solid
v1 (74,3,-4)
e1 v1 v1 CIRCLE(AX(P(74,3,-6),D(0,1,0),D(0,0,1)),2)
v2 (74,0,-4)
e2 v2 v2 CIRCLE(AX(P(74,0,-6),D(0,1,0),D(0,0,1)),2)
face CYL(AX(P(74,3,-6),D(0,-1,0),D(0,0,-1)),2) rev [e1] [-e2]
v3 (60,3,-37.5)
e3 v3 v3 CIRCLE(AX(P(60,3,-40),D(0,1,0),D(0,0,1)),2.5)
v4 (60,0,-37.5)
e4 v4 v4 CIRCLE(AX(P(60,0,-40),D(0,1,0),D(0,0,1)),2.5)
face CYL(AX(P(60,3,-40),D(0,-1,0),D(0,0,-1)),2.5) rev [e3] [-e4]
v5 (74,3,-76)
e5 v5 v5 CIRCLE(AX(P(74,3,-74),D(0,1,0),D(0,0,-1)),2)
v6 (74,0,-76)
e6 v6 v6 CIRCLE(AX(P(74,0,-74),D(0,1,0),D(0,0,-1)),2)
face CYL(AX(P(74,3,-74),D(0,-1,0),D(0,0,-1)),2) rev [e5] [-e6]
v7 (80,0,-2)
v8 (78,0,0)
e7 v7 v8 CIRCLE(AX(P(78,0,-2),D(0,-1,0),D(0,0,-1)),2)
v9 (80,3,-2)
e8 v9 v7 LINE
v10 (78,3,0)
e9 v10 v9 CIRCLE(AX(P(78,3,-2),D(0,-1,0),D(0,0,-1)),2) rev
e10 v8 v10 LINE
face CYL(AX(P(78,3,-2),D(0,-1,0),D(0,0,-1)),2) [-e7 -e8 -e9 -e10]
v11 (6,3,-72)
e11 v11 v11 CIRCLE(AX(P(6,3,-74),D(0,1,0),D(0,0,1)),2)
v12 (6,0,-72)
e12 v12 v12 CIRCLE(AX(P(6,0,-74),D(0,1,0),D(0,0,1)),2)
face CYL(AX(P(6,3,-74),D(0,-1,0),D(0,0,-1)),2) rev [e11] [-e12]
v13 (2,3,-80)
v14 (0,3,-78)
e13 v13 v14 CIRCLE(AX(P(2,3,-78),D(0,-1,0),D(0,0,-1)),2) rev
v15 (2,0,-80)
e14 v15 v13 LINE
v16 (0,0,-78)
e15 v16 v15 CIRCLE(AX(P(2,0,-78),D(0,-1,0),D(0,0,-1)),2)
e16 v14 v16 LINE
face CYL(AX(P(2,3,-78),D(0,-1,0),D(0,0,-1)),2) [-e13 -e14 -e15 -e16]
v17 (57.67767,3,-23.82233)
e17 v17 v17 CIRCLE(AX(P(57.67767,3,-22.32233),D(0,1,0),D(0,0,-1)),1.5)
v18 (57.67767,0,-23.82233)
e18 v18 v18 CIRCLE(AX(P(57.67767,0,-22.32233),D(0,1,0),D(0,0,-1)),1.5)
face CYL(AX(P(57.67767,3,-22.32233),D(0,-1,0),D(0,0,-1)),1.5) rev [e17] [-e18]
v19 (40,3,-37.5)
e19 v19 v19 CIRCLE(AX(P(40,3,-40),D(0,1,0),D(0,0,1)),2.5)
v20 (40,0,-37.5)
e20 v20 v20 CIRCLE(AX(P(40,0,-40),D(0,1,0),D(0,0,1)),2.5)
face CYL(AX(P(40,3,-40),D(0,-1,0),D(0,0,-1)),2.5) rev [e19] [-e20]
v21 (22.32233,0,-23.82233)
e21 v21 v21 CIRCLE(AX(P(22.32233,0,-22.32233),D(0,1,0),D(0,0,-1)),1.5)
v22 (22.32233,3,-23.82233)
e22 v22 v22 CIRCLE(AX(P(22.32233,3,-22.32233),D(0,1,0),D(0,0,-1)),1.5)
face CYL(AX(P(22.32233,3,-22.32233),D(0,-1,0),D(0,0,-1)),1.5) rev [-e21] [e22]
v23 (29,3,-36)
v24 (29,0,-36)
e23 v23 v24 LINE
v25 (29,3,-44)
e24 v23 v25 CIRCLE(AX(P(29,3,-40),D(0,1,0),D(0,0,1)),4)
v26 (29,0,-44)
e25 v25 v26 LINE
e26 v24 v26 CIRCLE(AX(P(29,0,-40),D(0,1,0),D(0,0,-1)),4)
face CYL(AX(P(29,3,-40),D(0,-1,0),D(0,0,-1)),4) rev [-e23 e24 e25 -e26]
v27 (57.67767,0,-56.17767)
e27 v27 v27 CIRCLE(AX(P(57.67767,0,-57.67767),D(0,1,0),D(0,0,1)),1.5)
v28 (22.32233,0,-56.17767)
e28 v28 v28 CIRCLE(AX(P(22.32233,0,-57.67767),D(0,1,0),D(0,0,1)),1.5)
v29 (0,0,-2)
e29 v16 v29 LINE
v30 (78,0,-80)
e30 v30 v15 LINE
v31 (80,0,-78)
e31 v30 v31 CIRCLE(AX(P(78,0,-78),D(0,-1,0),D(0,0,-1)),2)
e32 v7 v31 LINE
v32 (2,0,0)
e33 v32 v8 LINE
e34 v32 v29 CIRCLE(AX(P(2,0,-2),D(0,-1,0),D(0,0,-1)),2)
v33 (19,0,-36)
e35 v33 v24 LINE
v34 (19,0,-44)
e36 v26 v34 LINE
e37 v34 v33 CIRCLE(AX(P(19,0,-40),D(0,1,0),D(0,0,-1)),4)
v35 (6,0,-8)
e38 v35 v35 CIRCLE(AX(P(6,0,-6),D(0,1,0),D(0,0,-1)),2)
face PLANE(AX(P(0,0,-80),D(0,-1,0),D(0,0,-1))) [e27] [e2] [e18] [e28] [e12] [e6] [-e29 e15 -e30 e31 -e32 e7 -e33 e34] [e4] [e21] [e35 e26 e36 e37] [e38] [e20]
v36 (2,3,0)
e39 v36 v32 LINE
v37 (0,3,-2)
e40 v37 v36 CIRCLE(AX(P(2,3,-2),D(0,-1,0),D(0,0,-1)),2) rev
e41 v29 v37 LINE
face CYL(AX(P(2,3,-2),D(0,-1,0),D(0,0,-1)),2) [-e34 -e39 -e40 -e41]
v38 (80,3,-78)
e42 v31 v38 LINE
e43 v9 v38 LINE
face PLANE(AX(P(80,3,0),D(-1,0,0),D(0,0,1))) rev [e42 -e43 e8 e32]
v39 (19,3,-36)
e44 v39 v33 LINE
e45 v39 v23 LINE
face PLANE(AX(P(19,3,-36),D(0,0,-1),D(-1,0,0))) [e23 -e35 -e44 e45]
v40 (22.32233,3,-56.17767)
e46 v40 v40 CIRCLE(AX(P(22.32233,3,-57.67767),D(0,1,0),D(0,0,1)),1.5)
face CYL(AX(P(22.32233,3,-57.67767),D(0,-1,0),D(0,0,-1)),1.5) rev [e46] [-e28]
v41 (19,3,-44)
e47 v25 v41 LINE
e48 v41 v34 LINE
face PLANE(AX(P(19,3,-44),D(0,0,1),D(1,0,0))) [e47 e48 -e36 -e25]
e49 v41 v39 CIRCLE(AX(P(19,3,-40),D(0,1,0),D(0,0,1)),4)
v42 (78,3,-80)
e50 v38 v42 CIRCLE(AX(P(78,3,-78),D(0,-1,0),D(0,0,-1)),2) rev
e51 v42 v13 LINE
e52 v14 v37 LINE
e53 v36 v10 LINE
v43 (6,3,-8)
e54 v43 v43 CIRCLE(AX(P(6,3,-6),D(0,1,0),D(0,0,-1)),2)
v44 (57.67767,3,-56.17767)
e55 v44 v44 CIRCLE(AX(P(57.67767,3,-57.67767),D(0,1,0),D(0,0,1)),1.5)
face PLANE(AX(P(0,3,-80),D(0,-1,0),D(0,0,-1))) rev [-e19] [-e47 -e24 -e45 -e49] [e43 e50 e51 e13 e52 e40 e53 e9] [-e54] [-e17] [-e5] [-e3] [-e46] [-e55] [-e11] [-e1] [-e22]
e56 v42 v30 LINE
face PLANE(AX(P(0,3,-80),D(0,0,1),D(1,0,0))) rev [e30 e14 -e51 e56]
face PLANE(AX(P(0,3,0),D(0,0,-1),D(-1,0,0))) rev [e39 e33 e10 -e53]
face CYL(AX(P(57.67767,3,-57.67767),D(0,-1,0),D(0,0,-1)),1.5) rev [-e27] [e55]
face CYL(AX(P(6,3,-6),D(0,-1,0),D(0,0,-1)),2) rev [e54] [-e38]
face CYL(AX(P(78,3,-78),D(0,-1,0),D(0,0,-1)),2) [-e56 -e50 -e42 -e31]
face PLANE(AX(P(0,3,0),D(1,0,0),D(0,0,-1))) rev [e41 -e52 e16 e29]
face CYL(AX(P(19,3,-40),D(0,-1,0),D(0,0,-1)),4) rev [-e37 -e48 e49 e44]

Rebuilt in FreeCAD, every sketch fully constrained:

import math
import FreeCAD as App
import Part
import Sketcher

V = App.Vector


def edges_at(feature, points):
    """Names of the edges that pass closest to the given points."""
    edges = feature.Shape.Edges
    near = lambda p: min(range(len(edges)), key=lambda i: edges[i].distToShape(Part.Vertex(*p))[0])
    return sorted({f"Edge{near(p) + 1}" for p in points})


def add_polygon(sketch, points):
    """Adds a closed chain of lines whose ends are joined by coincident constraints."""
    first, n = sketch.GeometryCount, len(points)
    for a, b in zip(points, points[1:] + points[:1]):
        sketch.addGeometry(Part.LineSegment(App.Vector(*a, 0), App.Vector(*b, 0)), False)
    for i in range(n):
        sketch.addConstraint(Sketcher.Constraint("Coincident", first + i, 2, first + (i + 1) % n, 1))

doc = App.newDocument("Part")
params = doc.addObject("Spreadsheet::Sheet", "Params")
for row, (alias, value) in enumerate([
    ("sketch1_diameter", "4 mm"),
    ("sketch1_diameter2", "3 mm"),
    ("sketch1_diameter3", "5 mm"),
    ("sketch1_radius", "4 mm"),
    ("sketch1_width", "80 mm"),
    ("pad1_length", "3 mm"),
    ("fillet_radius", "2 mm"),
], start=1):
    params.set(f"A{row}", alias)
    params.set(f"B{row}", "=" + value)
    params.setAlias(f"B{row}", alias)

body = doc.addObject("PartDesign::Body", "Body")

# Sketch on XZ plane
sketch1 = body.newObject("Sketcher::SketchObject", "Sketch")
sketch1.AttachmentSupport = (doc.getObject("XZ_Plane"), [""])
sketch1.MapMode = "FlatFace"
add_polygon(sketch1, [(0, -80), (0, 0), (80, 0), (80, -80)])  # lines 0-3
sketch1.addGeometry(Part.Circle(V(6, -6, 0), V(0, 0, 1), 2), False)  # 4
sketch1.addGeometry(Part.Circle(V(22.32233, -22.32233, 0), V(0, 0, 1), 1.5), False)  # 5
sketch1.addGeometry(Part.Circle(V(74, -6, 0), V(0, 0, 1), 2), False)  # 6
sketch1.addGeometry(Part.Circle(V(57.67767, -22.32233, 0), V(0, 0, 1), 1.5), False)  # 7
sketch1.addGeometry(Part.ArcOfCircle(Part.Circle(V(19, -40, 0), V(0, 0, 1), 4), math.radians(180), math.radians(270)), False)  # 8
sketch1.addGeometry(Part.LineSegment(V(19, -44, 0), V(29, -44, 0)), False)  # 9
sketch1.addGeometry(Part.ArcOfCircle(Part.Circle(V(29, -40, 0), V(0, 0, 1), 4), math.radians(-90), math.radians(0)), False)  # 10
sketch1.addGeometry(Part.ArcOfCircle(Part.Circle(V(29, -40, 0), V(0, 0, 1), 4), math.radians(0), math.radians(90)), False)  # 11
sketch1.addGeometry(Part.LineSegment(V(29, -36, 0), V(19, -36, 0)), False)  # 12
sketch1.addGeometry(Part.ArcOfCircle(Part.Circle(V(19, -40, 0), V(0, 0, 1), 4), math.radians(90), math.radians(180)), False)  # 13
sketch1.addGeometry(Part.Circle(V(22.32233, -57.67767, 0), V(0, 0, 1), 1.5), False)  # 14
sketch1.addGeometry(Part.Circle(V(6, -74, 0), V(0, 0, 1), 2), False)  # 15
sketch1.addGeometry(Part.Circle(V(40, -40, 0), V(0, 0, 1), 2.5), False)  # 16
sketch1.addGeometry(Part.Circle(V(57.67767, -57.67767, 0), V(0, 0, 1), 1.5), False)  # 17
sketch1.addGeometry(Part.Circle(V(60, -40, 0), V(0, 0, 1), 2.5), False)  # 18
sketch1.addGeometry(Part.Circle(V(74, -74, 0), V(0, 0, 1), 2), False)  # 19
sketch1.addConstraint(Sketcher.Constraint("Tangent", 8, 2, 9, 1))
sketch1.addConstraint(Sketcher.Constraint("Tangent", 9, 2, 10, 1))
sketch1.addConstraint(Sketcher.Constraint("Tangent", 10, 2, 11, 1))
sketch1.addConstraint(Sketcher.Constraint("Tangent", 11, 2, 12, 1))
sketch1.addConstraint(Sketcher.Constraint("Tangent", 12, 2, 13, 1))
sketch1.addConstraint(Sketcher.Constraint("Tangent", 13, 2, 8, 1))
sketch1.addConstraint(Sketcher.Constraint("Vertical", 0))
sketch1.addConstraint(Sketcher.Constraint("Horizontal", 1))
sketch1.addConstraint(Sketcher.Constraint("Vertical", 2))
sketch1.addConstraint(Sketcher.Constraint("Horizontal", 3))
sketch1.addConstraint(Sketcher.Constraint("Horizontal", 9))
sketch1.addConstraint(Sketcher.Constraint("Horizontal", 12))
sketch1.addConstraint(Sketcher.Constraint("Coincident", 0, 2, -1, 1))
sketch1.addConstraint(Sketcher.Constraint("Equal", 4, 6))
sketch1.addConstraint(Sketcher.Constraint("Equal", 5, 7))
sketch1.addConstraint(Sketcher.Constraint("Equal", 8, 10))
sketch1.addConstraint(Sketcher.Constraint("Equal", 10, 11))
sketch1.addConstraint(Sketcher.Constraint("Equal", 7, 14))
sketch1.addConstraint(Sketcher.Constraint("Equal", 6, 15))
sketch1.addConstraint(Sketcher.Constraint("Equal", 14, 17))
sketch1.addConstraint(Sketcher.Constraint("Equal", 16, 18))
sketch1.addConstraint(Sketcher.Constraint("Equal", 15, 19))
sketch1.addConstraint(Sketcher.Constraint("Horizontal", 4, 3, 6, 3))
sketch1.addConstraint(Sketcher.Constraint("Horizontal", 5, 3, 7, 3))
sketch1.addConstraint(Sketcher.Constraint("Horizontal", 13, 3, 16, 3))
sketch1.addConstraint(Sketcher.Constraint("Horizontal", 14, 3, 17, 3))
sketch1.addConstraint(Sketcher.Constraint("Horizontal", 16, 3, 18, 3))
sketch1.addConstraint(Sketcher.Constraint("Horizontal", 15, 3, 19, 3))
sketch1.addConstraint(Sketcher.Constraint("Horizontal", 18, 3, 10, 2))
sketch1.addConstraint(Sketcher.Constraint("Horizontal", 10, 2, 13, 2))
sketch1.addConstraint(Sketcher.Constraint("Vertical", 5, 3, 14, 3))
sketch1.addConstraint(Sketcher.Constraint("Vertical", 4, 3, 15, 3))
sketch1.addConstraint(Sketcher.Constraint("Vertical", 7, 3, 17, 3))
sketch1.addConstraint(Sketcher.Constraint("Vertical", 6, 3, 19, 3))
sketch1.addConstraint(Sketcher.Constraint("Equal", 3, 0))
sketch1.addConstraint(Sketcher.Constraint("Diameter", 4, 4.0))
sketch1.addConstraint(Sketcher.Constraint("Diameter", 5, 3.0))
sketch1.addConstraint(Sketcher.Constraint("Diameter", 16, 5.0))
sketch1.addConstraint(Sketcher.Constraint("Radius", 8, 4.0))
sketch1.addConstraint(Sketcher.Constraint("DistanceX", 1, 1, 1, 2, 80.0))
sketch1.addConstraint(Sketcher.Constraint("DistanceX", 9, 1, 9, 2, 10.0))
sketch1.addConstraint(Sketcher.Constraint("DistanceX", -1, 1, 4, 3, 6.0))
sketch1.addConstraint(Sketcher.Constraint("DistanceY", 4, 3, -1, 1, 6.0))
sketch1.addConstraint(Sketcher.Constraint("DistanceX", -1, 1, 6, 3, 74.0))
sketch1.addConstraint(Sketcher.Constraint("DistanceX", -1, 1, 8, 3, 19.0))
sketch1.addConstraint(Sketcher.Constraint("DistanceY", 8, 3, -1, 1, 40.0))
sketch1.addConstraint(Sketcher.Constraint("DistanceY", 15, 3, -1, 1, 74.0))
sketch1.addConstraint(Sketcher.Constraint("DistanceX", -1, 1, 16, 3, 40.0))
sketch1.addConstraint(Sketcher.Constraint("DistanceX", -1, 1, 18, 3, 60.0))
sketch1.addConstraint(Sketcher.Constraint("DistanceX", -1, 1, 5, 3, 22.32233))
sketch1.addConstraint(Sketcher.Constraint("DistanceY", 5, 3, -1, 1, 22.32233))
sketch1.addConstraint(Sketcher.Constraint("DistanceX", -1, 1, 7, 3, 57.67767))
sketch1.addConstraint(Sketcher.Constraint("DistanceY", 14, 3, -1, 1, 57.67767))
sketch1.setExpression("Constraints[39]", "Params.sketch1_diameter")
sketch1.setExpression("Constraints[40]", "Params.sketch1_diameter2")
sketch1.setExpression("Constraints[41]", "Params.sketch1_diameter3")
sketch1.setExpression("Constraints[42]", "Params.sketch1_radius")
sketch1.setExpression("Constraints[43]", "Params.sketch1_width")
pad1 = body.newObject("PartDesign::Pad", "Pad")
pad1.Profile = sketch1
pad1.setExpression("Length", "Params.pad1_length")
pad1.Reversed = True
doc.recompute()

fillet = body.newObject("PartDesign::Fillet", "Fillet")
fillet.Base = (pad1, edges_at(pad1, [
    (0, 1.5, -80),
    (80, 1.5, -80),
    (80, 1.5, 0),
    (0, 1.5, 0),
]))
fillet.setExpression("Radius", "Params.fillet_radius")

doc.recompute()
